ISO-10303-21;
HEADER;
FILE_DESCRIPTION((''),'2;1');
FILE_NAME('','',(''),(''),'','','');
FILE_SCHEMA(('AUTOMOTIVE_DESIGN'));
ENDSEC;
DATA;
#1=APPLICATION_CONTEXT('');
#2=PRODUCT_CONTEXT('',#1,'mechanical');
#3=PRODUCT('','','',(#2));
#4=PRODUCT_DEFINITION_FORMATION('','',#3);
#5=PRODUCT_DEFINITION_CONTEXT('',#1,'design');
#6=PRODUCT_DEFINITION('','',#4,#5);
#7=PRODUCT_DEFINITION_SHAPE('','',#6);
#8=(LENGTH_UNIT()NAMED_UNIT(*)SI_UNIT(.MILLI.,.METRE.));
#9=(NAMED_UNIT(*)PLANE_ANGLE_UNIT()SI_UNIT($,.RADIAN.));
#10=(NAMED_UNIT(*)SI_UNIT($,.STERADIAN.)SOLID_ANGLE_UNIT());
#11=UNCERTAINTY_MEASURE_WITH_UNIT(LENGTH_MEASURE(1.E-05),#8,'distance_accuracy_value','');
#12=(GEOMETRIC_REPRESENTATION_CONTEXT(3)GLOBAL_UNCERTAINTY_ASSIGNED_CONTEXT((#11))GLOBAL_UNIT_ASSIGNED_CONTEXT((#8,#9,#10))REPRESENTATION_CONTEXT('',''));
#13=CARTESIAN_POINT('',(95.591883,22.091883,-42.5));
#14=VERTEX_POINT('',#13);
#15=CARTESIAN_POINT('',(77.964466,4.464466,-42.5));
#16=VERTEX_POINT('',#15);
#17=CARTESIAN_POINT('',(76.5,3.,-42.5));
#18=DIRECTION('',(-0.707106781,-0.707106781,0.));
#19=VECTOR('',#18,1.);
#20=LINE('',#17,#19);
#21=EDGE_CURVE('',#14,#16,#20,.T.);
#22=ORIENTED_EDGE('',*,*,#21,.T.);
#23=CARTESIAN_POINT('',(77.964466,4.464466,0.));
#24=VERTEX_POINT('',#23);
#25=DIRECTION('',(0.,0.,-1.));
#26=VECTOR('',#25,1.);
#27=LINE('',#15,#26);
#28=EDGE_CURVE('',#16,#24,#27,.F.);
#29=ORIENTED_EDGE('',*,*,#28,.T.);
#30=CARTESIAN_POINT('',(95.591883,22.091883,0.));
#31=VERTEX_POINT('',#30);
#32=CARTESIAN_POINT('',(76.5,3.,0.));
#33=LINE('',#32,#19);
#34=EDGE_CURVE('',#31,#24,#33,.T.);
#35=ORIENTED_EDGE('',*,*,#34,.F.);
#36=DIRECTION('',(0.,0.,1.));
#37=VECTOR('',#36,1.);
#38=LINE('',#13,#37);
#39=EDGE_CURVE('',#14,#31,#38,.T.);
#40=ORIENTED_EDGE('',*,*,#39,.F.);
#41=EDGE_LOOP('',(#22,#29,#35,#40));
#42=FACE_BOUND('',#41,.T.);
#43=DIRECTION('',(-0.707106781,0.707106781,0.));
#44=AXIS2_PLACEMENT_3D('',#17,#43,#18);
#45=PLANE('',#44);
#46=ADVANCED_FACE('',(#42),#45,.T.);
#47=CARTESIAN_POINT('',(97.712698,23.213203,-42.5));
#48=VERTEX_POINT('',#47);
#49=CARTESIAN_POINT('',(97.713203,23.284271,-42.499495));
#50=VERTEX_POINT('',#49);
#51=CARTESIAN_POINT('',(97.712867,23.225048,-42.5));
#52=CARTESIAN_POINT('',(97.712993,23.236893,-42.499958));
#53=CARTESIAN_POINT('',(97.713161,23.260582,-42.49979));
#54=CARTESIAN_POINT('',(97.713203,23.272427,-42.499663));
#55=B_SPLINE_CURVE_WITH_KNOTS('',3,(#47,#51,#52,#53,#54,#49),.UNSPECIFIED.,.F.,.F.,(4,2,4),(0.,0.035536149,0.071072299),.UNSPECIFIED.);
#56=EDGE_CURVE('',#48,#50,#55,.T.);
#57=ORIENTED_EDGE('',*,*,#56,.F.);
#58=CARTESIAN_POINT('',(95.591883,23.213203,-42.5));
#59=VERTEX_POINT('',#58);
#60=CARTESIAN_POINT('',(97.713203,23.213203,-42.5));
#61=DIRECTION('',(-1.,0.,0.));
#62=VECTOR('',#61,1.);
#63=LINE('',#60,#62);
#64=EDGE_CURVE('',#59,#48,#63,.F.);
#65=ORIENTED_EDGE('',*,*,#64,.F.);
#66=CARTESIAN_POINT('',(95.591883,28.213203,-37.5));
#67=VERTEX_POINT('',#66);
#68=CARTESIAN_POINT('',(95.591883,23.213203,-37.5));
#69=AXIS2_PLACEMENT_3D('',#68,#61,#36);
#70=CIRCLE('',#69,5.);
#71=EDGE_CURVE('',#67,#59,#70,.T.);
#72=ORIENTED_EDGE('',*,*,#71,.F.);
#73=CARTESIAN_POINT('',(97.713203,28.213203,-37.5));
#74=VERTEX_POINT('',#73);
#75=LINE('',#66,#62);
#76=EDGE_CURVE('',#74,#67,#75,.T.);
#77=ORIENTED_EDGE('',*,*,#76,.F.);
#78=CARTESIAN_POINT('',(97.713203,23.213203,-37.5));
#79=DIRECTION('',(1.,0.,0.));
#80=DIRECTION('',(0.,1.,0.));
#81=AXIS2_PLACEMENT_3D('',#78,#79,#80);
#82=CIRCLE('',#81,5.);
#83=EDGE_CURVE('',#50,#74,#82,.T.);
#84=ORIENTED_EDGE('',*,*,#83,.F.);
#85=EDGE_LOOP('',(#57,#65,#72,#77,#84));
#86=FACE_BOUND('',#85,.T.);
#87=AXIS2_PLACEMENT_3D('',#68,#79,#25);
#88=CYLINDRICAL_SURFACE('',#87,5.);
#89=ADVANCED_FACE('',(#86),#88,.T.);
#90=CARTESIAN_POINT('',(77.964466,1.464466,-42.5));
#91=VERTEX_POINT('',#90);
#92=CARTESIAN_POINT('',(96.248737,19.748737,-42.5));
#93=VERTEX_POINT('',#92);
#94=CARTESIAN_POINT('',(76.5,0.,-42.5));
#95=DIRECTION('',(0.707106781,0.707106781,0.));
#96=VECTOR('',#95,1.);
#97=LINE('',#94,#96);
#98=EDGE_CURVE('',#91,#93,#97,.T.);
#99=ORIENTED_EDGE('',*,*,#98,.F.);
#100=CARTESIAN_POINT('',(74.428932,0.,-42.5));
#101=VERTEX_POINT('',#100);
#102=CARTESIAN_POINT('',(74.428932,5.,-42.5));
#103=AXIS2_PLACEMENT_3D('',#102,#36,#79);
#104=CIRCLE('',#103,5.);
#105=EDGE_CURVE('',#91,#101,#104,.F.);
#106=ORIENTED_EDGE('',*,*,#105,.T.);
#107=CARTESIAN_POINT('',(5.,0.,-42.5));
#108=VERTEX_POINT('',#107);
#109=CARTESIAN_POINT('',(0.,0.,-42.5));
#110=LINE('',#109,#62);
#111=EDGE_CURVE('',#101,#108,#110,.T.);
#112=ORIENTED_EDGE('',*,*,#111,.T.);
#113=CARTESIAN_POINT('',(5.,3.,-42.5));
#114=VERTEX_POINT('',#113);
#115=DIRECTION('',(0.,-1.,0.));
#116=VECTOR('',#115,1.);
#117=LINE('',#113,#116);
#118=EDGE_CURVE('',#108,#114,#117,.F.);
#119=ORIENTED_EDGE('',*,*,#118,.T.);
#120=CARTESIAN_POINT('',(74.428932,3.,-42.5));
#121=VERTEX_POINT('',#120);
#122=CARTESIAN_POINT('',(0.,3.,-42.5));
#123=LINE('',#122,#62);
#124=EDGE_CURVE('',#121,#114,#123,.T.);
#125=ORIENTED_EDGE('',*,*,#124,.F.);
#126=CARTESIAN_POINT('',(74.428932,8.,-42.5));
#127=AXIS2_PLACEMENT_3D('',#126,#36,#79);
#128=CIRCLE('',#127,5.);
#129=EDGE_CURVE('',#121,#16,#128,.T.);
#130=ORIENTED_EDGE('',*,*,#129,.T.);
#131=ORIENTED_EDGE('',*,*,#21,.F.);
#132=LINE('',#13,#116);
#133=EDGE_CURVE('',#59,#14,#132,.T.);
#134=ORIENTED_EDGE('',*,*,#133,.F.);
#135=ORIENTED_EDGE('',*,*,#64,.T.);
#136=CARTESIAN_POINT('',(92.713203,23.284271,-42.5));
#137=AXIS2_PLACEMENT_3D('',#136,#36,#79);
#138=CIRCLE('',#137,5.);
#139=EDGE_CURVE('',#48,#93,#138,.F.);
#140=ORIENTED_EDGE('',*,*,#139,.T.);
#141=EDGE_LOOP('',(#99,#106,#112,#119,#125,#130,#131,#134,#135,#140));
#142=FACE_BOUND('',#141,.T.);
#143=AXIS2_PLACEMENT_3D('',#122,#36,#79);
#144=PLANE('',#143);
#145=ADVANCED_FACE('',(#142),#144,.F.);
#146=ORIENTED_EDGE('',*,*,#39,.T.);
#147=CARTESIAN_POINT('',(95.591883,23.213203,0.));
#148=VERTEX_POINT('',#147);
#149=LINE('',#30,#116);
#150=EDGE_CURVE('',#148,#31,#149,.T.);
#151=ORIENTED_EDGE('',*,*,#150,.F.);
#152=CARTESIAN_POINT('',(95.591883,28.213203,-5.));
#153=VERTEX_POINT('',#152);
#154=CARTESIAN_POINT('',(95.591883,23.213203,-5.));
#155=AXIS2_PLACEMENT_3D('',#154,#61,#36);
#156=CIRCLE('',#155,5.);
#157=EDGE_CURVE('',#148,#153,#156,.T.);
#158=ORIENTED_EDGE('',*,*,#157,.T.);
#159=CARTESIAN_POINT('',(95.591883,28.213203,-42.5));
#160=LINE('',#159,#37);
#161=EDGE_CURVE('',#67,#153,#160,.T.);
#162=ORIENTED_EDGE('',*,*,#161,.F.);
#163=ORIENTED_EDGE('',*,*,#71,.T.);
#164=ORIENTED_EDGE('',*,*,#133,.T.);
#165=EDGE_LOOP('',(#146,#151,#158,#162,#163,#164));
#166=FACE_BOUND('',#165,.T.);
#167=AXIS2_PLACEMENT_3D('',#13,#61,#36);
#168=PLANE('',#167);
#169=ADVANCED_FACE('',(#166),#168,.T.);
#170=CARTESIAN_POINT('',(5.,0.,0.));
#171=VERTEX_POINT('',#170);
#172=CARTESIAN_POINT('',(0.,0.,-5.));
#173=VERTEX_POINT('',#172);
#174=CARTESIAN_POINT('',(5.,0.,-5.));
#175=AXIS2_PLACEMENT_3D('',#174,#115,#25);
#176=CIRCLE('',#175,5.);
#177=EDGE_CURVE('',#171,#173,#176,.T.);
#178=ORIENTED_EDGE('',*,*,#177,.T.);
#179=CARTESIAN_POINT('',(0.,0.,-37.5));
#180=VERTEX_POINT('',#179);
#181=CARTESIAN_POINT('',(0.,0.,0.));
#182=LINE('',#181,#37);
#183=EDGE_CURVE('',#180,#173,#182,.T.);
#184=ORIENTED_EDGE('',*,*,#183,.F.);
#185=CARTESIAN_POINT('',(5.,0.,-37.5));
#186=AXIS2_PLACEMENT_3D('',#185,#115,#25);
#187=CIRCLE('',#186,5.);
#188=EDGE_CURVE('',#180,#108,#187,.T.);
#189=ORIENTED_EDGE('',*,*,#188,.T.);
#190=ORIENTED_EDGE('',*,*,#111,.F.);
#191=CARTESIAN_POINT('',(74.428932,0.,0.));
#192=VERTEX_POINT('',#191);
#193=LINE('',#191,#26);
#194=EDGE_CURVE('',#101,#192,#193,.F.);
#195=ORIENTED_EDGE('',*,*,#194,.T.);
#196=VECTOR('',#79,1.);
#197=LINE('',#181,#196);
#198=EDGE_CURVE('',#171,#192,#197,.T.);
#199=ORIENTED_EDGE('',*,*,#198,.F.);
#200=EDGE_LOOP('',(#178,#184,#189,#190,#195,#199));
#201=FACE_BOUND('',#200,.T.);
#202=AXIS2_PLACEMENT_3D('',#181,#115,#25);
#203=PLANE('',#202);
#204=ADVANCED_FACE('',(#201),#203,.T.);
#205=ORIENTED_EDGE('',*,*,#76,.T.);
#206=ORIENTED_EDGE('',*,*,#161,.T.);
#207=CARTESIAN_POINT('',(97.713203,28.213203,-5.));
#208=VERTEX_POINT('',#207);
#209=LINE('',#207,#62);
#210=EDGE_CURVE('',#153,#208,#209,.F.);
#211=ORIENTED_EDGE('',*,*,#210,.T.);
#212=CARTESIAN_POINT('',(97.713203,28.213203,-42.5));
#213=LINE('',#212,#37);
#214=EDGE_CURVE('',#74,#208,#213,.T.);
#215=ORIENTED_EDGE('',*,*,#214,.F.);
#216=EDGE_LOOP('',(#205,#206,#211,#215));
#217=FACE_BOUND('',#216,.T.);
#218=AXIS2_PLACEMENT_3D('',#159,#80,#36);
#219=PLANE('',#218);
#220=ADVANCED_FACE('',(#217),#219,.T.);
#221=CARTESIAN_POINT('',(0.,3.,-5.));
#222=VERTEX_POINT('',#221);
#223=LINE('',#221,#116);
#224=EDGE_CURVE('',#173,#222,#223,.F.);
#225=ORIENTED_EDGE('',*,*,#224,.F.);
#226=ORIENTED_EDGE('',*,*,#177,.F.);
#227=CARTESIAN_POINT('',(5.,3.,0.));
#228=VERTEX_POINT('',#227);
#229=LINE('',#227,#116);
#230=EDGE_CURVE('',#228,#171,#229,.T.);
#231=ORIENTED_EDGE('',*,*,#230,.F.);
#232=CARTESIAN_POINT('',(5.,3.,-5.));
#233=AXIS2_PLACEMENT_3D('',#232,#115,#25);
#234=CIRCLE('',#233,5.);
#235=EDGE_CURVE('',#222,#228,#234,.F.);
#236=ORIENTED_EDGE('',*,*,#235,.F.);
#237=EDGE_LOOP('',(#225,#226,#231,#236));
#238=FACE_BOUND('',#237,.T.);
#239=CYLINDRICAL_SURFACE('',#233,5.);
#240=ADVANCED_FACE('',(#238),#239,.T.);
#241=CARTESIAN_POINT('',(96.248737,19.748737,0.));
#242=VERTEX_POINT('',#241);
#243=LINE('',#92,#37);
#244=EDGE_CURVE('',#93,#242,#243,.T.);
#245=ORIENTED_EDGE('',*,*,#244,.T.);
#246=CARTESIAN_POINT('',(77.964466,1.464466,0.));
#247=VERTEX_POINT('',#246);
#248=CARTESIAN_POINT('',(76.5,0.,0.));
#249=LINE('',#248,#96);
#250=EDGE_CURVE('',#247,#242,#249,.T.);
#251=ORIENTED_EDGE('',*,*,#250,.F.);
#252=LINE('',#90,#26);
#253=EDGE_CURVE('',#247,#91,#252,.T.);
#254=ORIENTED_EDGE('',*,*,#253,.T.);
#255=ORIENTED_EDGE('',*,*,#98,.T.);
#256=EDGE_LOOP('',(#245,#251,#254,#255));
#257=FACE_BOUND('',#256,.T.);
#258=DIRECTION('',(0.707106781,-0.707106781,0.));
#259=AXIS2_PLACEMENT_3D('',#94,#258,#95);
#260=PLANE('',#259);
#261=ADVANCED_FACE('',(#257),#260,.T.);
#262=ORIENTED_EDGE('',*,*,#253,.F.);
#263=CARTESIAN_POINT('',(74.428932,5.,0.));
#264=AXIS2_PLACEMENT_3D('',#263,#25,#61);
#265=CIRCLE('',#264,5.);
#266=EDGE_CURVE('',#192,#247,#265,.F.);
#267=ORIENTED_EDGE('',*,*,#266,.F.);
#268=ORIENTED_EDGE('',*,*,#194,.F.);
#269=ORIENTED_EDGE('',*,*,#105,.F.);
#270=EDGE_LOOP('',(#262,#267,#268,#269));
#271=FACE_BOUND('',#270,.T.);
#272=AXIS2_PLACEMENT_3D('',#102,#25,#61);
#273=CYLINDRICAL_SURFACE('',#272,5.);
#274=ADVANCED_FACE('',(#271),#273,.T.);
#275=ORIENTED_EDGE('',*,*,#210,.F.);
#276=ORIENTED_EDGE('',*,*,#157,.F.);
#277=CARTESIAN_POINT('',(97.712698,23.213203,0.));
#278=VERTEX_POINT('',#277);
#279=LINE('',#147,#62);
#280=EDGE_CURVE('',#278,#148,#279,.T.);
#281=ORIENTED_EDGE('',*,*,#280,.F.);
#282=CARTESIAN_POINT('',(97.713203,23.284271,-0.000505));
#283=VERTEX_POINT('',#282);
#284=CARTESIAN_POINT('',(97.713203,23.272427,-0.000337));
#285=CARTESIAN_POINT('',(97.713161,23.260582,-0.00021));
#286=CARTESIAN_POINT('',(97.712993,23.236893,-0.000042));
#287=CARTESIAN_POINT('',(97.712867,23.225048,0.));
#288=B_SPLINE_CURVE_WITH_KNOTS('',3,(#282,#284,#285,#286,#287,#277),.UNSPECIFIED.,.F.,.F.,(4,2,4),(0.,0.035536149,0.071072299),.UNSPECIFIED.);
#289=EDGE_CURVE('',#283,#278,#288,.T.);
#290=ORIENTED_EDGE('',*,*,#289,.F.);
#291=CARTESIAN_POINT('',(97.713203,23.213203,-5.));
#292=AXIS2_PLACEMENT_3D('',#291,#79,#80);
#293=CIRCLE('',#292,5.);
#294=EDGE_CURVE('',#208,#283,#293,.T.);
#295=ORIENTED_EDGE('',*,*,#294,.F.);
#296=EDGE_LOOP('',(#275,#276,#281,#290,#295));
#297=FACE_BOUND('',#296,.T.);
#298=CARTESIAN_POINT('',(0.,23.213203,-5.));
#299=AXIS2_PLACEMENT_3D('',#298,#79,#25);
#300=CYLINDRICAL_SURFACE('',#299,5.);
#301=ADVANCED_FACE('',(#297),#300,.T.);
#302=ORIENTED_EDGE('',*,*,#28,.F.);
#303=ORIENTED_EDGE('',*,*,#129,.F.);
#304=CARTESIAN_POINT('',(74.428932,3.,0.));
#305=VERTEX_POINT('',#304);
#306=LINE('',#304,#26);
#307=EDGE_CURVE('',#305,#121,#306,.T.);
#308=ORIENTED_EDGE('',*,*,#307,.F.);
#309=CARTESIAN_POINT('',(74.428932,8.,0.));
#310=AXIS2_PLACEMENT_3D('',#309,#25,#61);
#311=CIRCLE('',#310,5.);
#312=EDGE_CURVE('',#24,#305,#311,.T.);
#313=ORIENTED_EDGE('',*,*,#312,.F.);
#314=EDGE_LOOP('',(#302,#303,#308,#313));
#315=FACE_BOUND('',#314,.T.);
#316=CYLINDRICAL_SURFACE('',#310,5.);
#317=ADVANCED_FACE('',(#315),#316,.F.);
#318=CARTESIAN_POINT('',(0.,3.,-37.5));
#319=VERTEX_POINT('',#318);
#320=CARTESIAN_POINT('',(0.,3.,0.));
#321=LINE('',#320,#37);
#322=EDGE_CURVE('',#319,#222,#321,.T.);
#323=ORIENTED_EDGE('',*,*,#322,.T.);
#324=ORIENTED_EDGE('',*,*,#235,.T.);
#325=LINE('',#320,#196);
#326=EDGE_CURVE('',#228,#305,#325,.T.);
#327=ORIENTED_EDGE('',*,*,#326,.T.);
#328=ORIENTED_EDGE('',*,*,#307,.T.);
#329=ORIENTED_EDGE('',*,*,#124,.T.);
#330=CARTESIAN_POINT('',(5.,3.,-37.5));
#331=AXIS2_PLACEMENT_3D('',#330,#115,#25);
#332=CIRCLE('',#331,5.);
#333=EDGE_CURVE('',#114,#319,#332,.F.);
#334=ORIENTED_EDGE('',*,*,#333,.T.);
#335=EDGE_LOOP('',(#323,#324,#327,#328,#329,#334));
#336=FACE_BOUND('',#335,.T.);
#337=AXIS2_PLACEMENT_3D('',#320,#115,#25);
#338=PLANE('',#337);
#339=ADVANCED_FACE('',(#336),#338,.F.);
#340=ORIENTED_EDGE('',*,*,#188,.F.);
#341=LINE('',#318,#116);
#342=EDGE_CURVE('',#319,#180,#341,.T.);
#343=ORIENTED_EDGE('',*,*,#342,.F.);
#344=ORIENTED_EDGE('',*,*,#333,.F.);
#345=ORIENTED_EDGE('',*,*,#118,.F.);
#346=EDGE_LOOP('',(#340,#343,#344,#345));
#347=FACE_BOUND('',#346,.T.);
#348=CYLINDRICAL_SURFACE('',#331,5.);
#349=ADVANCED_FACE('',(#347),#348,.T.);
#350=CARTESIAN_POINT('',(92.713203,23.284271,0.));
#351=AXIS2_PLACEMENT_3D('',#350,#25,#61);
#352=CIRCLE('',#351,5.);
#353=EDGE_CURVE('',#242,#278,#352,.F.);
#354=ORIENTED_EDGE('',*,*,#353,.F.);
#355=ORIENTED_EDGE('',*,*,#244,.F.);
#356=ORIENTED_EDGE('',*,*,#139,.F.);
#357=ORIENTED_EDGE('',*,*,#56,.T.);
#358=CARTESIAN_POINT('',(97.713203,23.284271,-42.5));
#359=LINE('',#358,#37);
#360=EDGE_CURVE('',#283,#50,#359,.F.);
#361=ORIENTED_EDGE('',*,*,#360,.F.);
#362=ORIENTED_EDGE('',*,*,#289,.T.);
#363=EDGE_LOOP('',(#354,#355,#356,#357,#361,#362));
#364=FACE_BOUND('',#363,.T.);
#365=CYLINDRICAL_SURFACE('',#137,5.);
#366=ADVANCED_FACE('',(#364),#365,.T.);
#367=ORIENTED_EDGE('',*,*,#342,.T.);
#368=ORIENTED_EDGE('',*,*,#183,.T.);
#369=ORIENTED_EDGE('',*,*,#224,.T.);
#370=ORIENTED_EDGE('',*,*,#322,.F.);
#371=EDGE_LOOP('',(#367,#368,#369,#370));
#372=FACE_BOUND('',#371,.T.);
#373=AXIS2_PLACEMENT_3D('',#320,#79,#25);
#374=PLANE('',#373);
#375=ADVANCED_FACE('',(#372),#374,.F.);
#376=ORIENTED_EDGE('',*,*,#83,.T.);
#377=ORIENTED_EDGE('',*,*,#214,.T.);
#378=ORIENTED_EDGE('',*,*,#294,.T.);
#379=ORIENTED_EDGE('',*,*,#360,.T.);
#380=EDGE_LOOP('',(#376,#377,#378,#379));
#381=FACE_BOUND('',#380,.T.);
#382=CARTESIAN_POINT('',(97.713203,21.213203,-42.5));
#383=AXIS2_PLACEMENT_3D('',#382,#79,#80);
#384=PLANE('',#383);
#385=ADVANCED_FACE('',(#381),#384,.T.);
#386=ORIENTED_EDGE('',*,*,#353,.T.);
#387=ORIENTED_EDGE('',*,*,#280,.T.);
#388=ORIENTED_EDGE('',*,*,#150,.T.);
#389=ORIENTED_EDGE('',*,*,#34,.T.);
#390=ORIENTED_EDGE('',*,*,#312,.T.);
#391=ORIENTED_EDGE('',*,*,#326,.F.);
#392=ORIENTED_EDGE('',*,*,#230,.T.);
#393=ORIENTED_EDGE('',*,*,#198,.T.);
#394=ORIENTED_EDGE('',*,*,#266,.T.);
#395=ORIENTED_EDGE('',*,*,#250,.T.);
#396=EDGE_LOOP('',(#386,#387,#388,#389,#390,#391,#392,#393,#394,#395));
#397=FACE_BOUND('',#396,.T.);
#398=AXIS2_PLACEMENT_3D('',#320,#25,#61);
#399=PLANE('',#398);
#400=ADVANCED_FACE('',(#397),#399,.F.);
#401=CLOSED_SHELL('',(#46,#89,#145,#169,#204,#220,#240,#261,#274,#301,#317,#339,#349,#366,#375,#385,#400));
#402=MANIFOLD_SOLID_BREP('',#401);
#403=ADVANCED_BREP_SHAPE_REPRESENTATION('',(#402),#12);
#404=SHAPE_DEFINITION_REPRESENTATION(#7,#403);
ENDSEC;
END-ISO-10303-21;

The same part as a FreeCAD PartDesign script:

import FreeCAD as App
import Part
import Sketcher

V = App.Vector
Q = App.Units.Quantity


def edges_at(feature, points):
    """Names of the edges that pass closest to the given points."""
    edges = feature.Shape.Edges
    near = lambda p: min(range(len(edges)), key=lambda i: edges[i].distToShape(Part.Vertex(*p))[0])
    return sorted({f"Edge{near(p) + 1}" for p in points})

doc = App.newDocument("Part")
body = doc.addObject("PartDesign::Body", "Body")

sketch1 = body.newObject("Sketcher::SketchObject", "Sketch")
sketch1.AttachmentSupport = (doc.getObject("XZ_Plane"), [""])
sketch1.MapMode = "FlatFace"
sketch1.addGeometry(Part.LineSegment(V(0, -42, 0), V(0, 0, 0)), False)
sketch1.addGeometry(Part.LineSegment(V(0, 0, 0), V(76, 0, 0)), False)
sketch1.addGeometry(Part.LineSegment(V(76, 0, 0), V(76, -42, 0)), False)
sketch1.addGeometry(Part.LineSegment(V(76, -42, 0), V(0, -42, 0)), False)
sketch1.addConstraint(Sketcher.Constraint("Coincident", 0, 2, 1, 1))
sketch1.addConstraint(Sketcher.Constraint("Coincident", 1, 2, 2, 1))
sketch1.addConstraint(Sketcher.Constraint("Coincident", 2, 2, 3, 1))
sketch1.addConstraint(Sketcher.Constraint("Coincident", 3, 2, 0, 1))
sketch1.addConstraint(Sketcher.Constraint("Vertical", 0))
sketch1.addConstraint(Sketcher.Constraint("Horizontal", 1))
sketch1.addConstraint(Sketcher.Constraint("Vertical", 2))
sketch1.addConstraint(Sketcher.Constraint("Horizontal", 3))
sketch1.addConstraint(Sketcher.Constraint("Coincident", 0, 2, -1, 1))
sketch1.addConstraint(Sketcher.Constraint("DistanceX", 1, 1, 1, 2, Q("76.5 mm")))
sketch1.addConstraint(Sketcher.Constraint("DistanceY", 0, 1, 0, 2, Q("42.5 mm")))
pad1 = body.newObject("PartDesign::Pad", "Pad")
pad1.Profile = sketch1
pad1.Length = 3
pad1.Reversed = True

sketch2 = body.newObject("Sketcher::SketchObject", "Sketch001")
sketch2.AttachmentSupport = (doc.getObject("XY_Plane"), [""])
sketch2.MapMode = "FlatFace"
sketch2.addGeometry(Part.LineSegment(V(76.5, 3, 0), V(76.5, 0, 0)), False)
sketch2.addGeometry(Part.LineSegment(V(76.5, 0, 0), V(97.7, 21.2, 0)), False)
sketch2.addGeometry(Part.LineSegment(V(97.7, 21.2, 0), V(97.7, 28.2, 0)), False)
sketch2.addGeometry(Part.LineSegment(V(97.7, 28.2, 0), V(95.6, 28.2, 0)), False)
sketch2.addGeometry(Part.LineSegment(V(95.6, 28.2, 0), V(95.6, 22.1, 0)), False)
sketch2.addGeometry(Part.LineSegment(V(95.6, 22.1, 0), V(76.5, 3, 0)), False)
sketch2.addConstraint(Sketcher.Constraint("Coincident", 0, 2, 1, 1))
sketch2.addConstraint(Sketcher.Constraint("Coincident", 1, 2, 2, 1))
sketch2.addConstraint(Sketcher.Constraint("Coincident", 2, 2, 3, 1))
sketch2.addConstraint(Sketcher.Constraint("Coincident", 3, 2, 4, 1))
sketch2.addConstraint(Sketcher.Constraint("Coincident", 4, 2, 5, 1))
sketch2.addConstraint(Sketcher.Constraint("Coincident", 5, 2, 0, 1))
sketch2.addConstraint(Sketcher.Constraint("Vertical", 0))
sketch2.addConstraint(Sketcher.Constraint("Vertical", 2))
sketch2.addConstraint(Sketcher.Constraint("Horizontal", 3))
sketch2.addConstraint(Sketcher.Constraint("Vertical", 4))
sketch2.addConstraint(Sketcher.Constraint("PointOnObject", 0, 2, -1))
sketch2.addConstraint(Sketcher.Constraint("Parallel", 1, 5))
sketch2.addConstraint(Sketcher.Constraint("DistanceY", 0, 2, 0, 1, Q("3 mm")))
sketch2.addConstraint(Sketcher.Constraint("DistanceY", 2, 1, 2, 2, Q("7 mm")))
sketch2.addConstraint(Sketcher.Constraint("Angle", 1, Q("45 deg")))
sketch2.addConstraint(Sketcher.Constraint("Distance", 1, Q("30 mm")))
sketch2.addConstraint(Sketcher.Constraint("Distance", 5, Q("27 mm")))
sketch2.addConstraint(Sketcher.Constraint("DistanceX", -1, 1, 0, 2, Q("76.5 mm")))
pad2 = body.newObject("PartDesign::Pad", "Pad001")
pad2.Profile = sketch2
pad2.Length = 42.5
pad2.Reversed = True
doc.recompute()

fillet = body.newObject("PartDesign::Fillet", "Fillet")
fillet.Base = (pad2, edges_at(pad2, [(97.713, 21.213, -21.25), (76.5, 0, -21.25)]))
fillet.Radius = 5
doc.recompute()

fillet2 = body.newObject("PartDesign::Fillet", "Fillet001")
fillet2.Base = (fillet, edges_at(fillet, [(0, 1.5, -42.5), (0, 1.5, 0)]))
fillet2.Radius = 5
doc.recompute()

fillet3 = body.newObject("PartDesign::Fillet", "Fillet002")
fillet3.Base = (fillet2, edges_at(fillet2, [(96.653, 28.213, 0), (96.653, 28.213, -42.5)]))
fillet3.Radius = 5
doc.recompute()

fillet4 = body.newObject("PartDesign::Fillet", "Fillet003")
fillet4.Base = (fillet3, edges_at(fillet3, [(76.5, 3, -21.25)]))
fillet4.Radius = 5

doc.recompute()
